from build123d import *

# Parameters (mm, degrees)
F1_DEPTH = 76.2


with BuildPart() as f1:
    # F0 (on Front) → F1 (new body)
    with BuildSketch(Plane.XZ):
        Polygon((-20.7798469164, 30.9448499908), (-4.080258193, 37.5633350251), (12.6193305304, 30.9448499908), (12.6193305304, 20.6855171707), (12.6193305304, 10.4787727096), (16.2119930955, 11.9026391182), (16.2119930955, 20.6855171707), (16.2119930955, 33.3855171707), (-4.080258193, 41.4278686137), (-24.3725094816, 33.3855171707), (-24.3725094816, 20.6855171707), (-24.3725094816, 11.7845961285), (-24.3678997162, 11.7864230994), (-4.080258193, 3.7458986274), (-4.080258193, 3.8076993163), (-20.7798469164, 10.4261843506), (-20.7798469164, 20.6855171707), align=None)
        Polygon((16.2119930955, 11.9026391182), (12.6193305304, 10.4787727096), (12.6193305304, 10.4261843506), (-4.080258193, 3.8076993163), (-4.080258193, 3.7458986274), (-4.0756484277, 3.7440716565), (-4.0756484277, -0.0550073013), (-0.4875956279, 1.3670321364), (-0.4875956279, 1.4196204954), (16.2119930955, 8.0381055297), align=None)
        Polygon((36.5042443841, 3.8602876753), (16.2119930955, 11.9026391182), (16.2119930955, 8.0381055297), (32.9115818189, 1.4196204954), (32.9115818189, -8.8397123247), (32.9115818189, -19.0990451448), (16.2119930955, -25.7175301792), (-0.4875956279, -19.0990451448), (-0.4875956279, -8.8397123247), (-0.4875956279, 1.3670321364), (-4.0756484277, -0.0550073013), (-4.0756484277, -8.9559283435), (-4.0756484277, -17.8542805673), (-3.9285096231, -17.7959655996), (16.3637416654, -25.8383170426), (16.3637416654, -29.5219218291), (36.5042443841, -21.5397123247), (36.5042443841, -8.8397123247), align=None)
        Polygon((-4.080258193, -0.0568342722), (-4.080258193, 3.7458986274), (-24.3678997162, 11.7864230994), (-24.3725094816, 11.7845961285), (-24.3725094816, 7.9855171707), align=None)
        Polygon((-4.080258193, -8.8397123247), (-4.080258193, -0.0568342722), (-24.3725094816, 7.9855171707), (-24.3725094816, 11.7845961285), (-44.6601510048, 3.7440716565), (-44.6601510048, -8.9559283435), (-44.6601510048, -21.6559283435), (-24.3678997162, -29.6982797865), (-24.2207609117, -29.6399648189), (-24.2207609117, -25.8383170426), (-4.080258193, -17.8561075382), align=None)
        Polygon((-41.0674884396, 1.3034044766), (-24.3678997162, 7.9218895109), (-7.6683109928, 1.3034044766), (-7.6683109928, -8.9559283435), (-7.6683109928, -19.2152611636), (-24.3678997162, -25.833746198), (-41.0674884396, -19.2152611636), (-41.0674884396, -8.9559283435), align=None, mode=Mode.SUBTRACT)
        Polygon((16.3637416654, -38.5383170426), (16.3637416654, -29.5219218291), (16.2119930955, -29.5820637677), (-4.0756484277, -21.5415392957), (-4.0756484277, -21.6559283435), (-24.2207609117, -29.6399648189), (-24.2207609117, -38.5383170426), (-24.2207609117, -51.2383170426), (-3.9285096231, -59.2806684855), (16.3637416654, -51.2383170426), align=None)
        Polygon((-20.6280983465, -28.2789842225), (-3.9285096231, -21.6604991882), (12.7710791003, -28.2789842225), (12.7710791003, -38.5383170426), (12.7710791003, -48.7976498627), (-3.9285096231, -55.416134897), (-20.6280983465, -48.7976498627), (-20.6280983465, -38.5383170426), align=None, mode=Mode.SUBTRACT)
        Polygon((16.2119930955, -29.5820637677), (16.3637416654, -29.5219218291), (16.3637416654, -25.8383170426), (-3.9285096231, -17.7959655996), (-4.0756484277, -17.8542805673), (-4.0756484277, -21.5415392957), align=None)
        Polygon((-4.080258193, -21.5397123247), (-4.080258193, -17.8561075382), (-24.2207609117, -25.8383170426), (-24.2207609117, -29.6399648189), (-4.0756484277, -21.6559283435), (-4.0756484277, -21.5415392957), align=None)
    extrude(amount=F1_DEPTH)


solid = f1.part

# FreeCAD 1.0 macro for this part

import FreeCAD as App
import Part
import Sketcher

V = App.Vector
Q = App.Units.Quantity


def add_polygon(sketch, points):
    """Adds a closed chain of lines whose ends are joined by coincident constraints."""
    first, n = sketch.GeometryCount, len(points)
    for a, b in zip(points, points[1:] + points[:1]):
        sketch.addGeometry(Part.LineSegment(App.Vector(*a, 0), App.Vector(*b, 0)), False)
    for i in range(n):
        sketch.addConstraint(Sketcher.Constraint("Coincident", first + i, 2, first + (i + 1) % n, 1))

doc = App.newDocument("Part")
params = doc.addObject("Spreadsheet::Sheet", "Params")
for row, (alias, value) in enumerate([
    ("sketch1_height", "1 in"),
    ("pad1_length", "3 in"),
], start=1):
    params.set(f"A{row}", alias)
    params.set(f"B{row}", "=" + value)
    params.setAlias(f"B{row}", alias)

body = doc.addObject("PartDesign::Body", "Body")

# Sketch on XZ plane
sketch1 = doc.addObject("Sketcher::SketchObject", "Sketch")
body.addObject(sketch1)
sketch1.AttachmentSupport = (doc.XZ_Plane, [""])
sketch1.MapMode = "FlatFace"
add_polygon(sketch1, [(-24.3679, -29.6983), (-24.2208, -29.64), (-24.2208, -51.2383), (-3.9285, -59.2807), (16.3637, -51.2383), (16.3637, -29.5219), (36.5042, -21.5397), (36.5042, 3.8603), (16.212, 11.9026), (16.212, 33.3855), (-4.0803, 41.4279), (-24.3725, 33.3855), (-24.3725, 11.7846), (-44.6602, 3.7441), (-44.6602, -21.6559)])  # lines 0-14
add_polygon(sketch1, [(-41.0675, -19.2153), (-41.0675, 1.3034), (-24.3679, 7.9219), (-7.6683, 1.3034), (-7.6683, -19.2153), (-24.3679, -25.8337)])  # lines 15-20
add_polygon(sketch1, [(-4.0756, 3.7441), (-4.0756, -21.5415), (-4.0803, -21.5397), (-4.0803, 3.7459)])  # lines 21-24
add_polygon(sketch1, [(-3.9285, -55.4161), (-20.6281, -48.7976), (-20.6281, -28.279), (-3.9285, -21.6605), (12.7711, -28.279), (12.7711, -48.7976)])  # lines 25-30
add_polygon(sketch1, [(-20.7798, 30.9448), (-4.0803, 37.5633), (12.6193, 30.9448), (12.6193, 10.4262), (-4.0803, 3.8077), (-20.7798, 10.4262)])  # lines 31-36
add_polygon(sketch1, [(-0.4876, 1.4196), (16.212, 8.0381), (32.9116, 1.4196), (32.9116, -19.099), (16.212, -25.7175), (-0.4876, -19.099)])  # lines 37-42
sketch1.addConstraint(Sketcher.Constraint("Vertical", 1))
sketch1.addConstraint(Sketcher.Constraint("Vertical", 4))
sketch1.addConstraint(Sketcher.Constraint("Vertical", 6))
sketch1.addConstraint(Sketcher.Constraint("Vertical", 8))
sketch1.addConstraint(Sketcher.Constraint("Vertical", 11))
sketch1.addConstraint(Sketcher.Constraint("Vertical", 13))
sketch1.addConstraint(Sketcher.Constraint("Vertical", 15))
sketch1.addConstraint(Sketcher.Constraint("Vertical", 18))
sketch1.addConstraint(Sketcher.Constraint("Vertical", 21))
sketch1.addConstraint(Sketcher.Constraint("Vertical", 23))
sketch1.addConstraint(Sketcher.Constraint("Vertical", 26))
sketch1.addConstraint(Sketcher.Constraint("Vertical", 29))
sketch1.addConstraint(Sketcher.Constraint("Vertical", 33))
sketch1.addConstraint(Sketcher.Constraint("Vertical", 36))
sketch1.addConstraint(Sketcher.Constraint("Vertical", 39))
sketch1.addConstraint(Sketcher.Constraint("Vertical", 42))
sketch1.addConstraint(Sketcher.Constraint("Parallel", 0, 3))
sketch1.addConstraint(Sketcher.Constraint("Parallel", 3, 5))
sketch1.addConstraint(Sketcher.Constraint("Parallel", 2, 7))
sketch1.addConstraint(Sketcher.Constraint("Parallel", 7, 9))
sketch1.addConstraint(Sketcher.Constraint("Parallel", 5, 10))
sketch1.addConstraint(Sketcher.Constraint("Parallel", 10, 12))
sketch1.addConstraint(Sketcher.Constraint("Parallel", 9, 14))
sketch1.addConstraint(Sketcher.Constraint("Parallel", 12, 16))
sketch1.addConstraint(Sketcher.Constraint("Parallel", 14, 17))
sketch1.addConstraint(Sketcher.Constraint("Parallel", 16, 19))
sketch1.addConstraint(Sketcher.Constraint("Parallel", 17, 20))
sketch1.addConstraint(Sketcher.Constraint("Parallel", 20, 22))
sketch1.addConstraint(Sketcher.Constraint("Parallel", 22, 24))
sketch1.addConstraint(Sketcher.Constraint("Parallel", 20, 25))
sketch1.addConstraint(Sketcher.Constraint("Parallel", 19, 27))
sketch1.addConstraint(Sketcher.Constraint("Parallel", 25, 28))
sketch1.addConstraint(Sketcher.Constraint("Parallel", 27, 30))
sketch1.addConstraint(Sketcher.Constraint("Parallel", 30, 31))
sketch1.addConstraint(Sketcher.Constraint("Parallel", 28, 32))
sketch1.addConstraint(Sketcher.Constraint("Parallel", 31, 34))
sketch1.addConstraint(Sketcher.Constraint("Parallel", 32, 35))
sketch1.addConstraint(Sketcher.Constraint("Parallel", 34, 37))
sketch1.addConstraint(Sketcher.Constraint("Parallel", 35, 38))
sketch1.addConstraint(Sketcher.Constraint("Parallel", 37, 40))
sketch1.addConstraint(Sketcher.Constraint("Parallel", 38, 41))
sketch1.addConstraint(Sketcher.Constraint("Horizontal", 1, 2, 3, 2))
sketch1.addConstraint(Sketcher.Constraint("Horizontal", 8, 2, 10, 2))
sketch1.addConstraint(Sketcher.Constraint("Horizontal", 15, 2, 17, 2))
sketch1.addConstraint(Sketcher.Constraint("Horizontal", 18, 2, 20, 2))
sketch1.addConstraint(Sketcher.Constraint("Horizontal", 5, 2, 22, 2))
sketch1.addConstraint(Sketcher.Constraint("Horizontal", 12, 2, 24, 2))
sketch1.addConstraint(Sketcher.Constraint("Horizontal", 26, 2, 28, 2))
sketch1.addConstraint(Sketcher.Constraint("Horizontal", 25, 2, 29, 2))
sketch1.addConstraint(Sketcher.Constraint("Horizontal", 33, 2, 35, 2))
sketch1.addConstraint(Sketcher.Constraint("Horizontal", 32, 2, 36, 2))
sketch1.addConstraint(Sketcher.Constraint("Horizontal", 39, 2, 41, 2))
sketch1.addConstraint(Sketcher.Constraint("Horizontal", 38, 2, 42, 2))
sketch1.addConstraint(Sketcher.Constraint("Vertical", 14, 2, 16, 2))
sketch1.addConstraint(Sketcher.Constraint("Vertical", 16, 2, 19, 2))
sketch1.addConstraint(Sketcher.Constraint("Vertical", 9, 2, 22, 2))
sketch1.addConstraint(Sketcher.Constraint("Vertical", 2, 2, 27, 2))
sketch1.addConstraint(Sketcher.Constraint("Vertical", 23, 2, 31, 2))
sketch1.addConstraint(Sketcher.Constraint("Vertical", 8, 2, 37, 2))
sketch1.addConstraint(Sketcher.Constraint("Equal", 6, 13))
sketch1.addConstraint(Sketcher.Constraint("Equal", 18, 26))
sketch1.addConstraint(Sketcher.Constraint("Equal", 29, 33))
sketch1.addConstraint(Sketcher.Constraint("Equal", 36, 39))
sketch1.addConstraint(Sketcher.Constraint("Equal", 3, 7))
sketch1.addConstraint(Sketcher.Constraint("Equal", 7, 9))
sketch1.addConstraint(Sketcher.Constraint("Equal", 10, 14))
sketch1.addConstraint(Sketcher.Constraint("Equal", 20, 25))
sketch1.addConstraint(Sketcher.Constraint("Equal", 30, 31))
sketch1.addConstraint(Sketcher.Constraint("Equal", 35, 37))
sketch1.addConstraint(Sketcher.Constraint("DistanceY", 6, 1, 6, 2, Q("1 in")))
sketch1.addConstraint(Sketcher.Constraint("DistanceY", 8, 1, 8, 2, Q("21.482878 mm")))
sketch1.addConstraint(Sketcher.Constraint("DistanceY", 11, 2, 11, 1, Q("21.600921 mm")))
sketch1.addConstraint(Sketcher.Constraint("DistanceY", 21, 2, 21, 1, Q("25.285611 mm")))
sketch1.addConstraint(Sketcher.Constraint("DistanceX", 14, 2, -1, 1, Q("24.3679 mm")))
sketch1.addConstraint(Sketcher.Constraint("DistanceY", -1, 1, 23, 2, Q("3.745899 mm")))
sketch1.addConstraint(Sketcher.Constraint("DistanceX", 25, 2, -1, 1, Q("20.628098 mm")))
sketch1.addConstraint(Sketcher.Constraint("DistanceY", 27, 2, -1, 1, Q("21.660499 mm")))
sketch1.addConstraint(Sketcher.Constraint("DistanceY", -1, 1, 34, 2, Q("3.807699 mm")))
sketch1.addConstraint(Sketcher.Constraint("DistanceX", 9, 2, 4, 2, Q("20.444 mm")))
sketch1.addConstraint(Sketcher.Constraint("Distance", 22, Q("0.004959 mm")))
sketch1.addConstraint(Sketcher.Constraint("DistanceY", 1, 2, 1, 1, Q("21.598352 mm")))
sketch1.addConstraint(Sketcher.Constraint("DistanceY", 15, 1, 15, 2, Q("20.518666 mm")))
sketch1.addConstraint(Sketcher.Constraint("DistanceX", 0, 2, -1, 1, Q("24.220761 mm")))
sketch1.addConstraint(Sketcher.Constraint("DistanceY", 2, 2, -1, 1, Q("59.280668 mm")))
sketch1.addConstraint(Sketcher.Constraint("DistanceY", -1, 1, 16, 2, Q("7.92189 mm")))
sketch1.addConstraint(Sketcher.Constraint("DistanceY", -1, 1, 38, 2, Q("1.41962 mm")))
sketch1.setExpression("Constraints[112]", "Params.sketch1_height")
pad1 = doc.addObject("PartDesign::Pad", "Pad")
body.addObject(pad1)
pad1.Profile = sketch1
pad1.setExpression("Length", "Params.pad1_length")

doc.recompute()
